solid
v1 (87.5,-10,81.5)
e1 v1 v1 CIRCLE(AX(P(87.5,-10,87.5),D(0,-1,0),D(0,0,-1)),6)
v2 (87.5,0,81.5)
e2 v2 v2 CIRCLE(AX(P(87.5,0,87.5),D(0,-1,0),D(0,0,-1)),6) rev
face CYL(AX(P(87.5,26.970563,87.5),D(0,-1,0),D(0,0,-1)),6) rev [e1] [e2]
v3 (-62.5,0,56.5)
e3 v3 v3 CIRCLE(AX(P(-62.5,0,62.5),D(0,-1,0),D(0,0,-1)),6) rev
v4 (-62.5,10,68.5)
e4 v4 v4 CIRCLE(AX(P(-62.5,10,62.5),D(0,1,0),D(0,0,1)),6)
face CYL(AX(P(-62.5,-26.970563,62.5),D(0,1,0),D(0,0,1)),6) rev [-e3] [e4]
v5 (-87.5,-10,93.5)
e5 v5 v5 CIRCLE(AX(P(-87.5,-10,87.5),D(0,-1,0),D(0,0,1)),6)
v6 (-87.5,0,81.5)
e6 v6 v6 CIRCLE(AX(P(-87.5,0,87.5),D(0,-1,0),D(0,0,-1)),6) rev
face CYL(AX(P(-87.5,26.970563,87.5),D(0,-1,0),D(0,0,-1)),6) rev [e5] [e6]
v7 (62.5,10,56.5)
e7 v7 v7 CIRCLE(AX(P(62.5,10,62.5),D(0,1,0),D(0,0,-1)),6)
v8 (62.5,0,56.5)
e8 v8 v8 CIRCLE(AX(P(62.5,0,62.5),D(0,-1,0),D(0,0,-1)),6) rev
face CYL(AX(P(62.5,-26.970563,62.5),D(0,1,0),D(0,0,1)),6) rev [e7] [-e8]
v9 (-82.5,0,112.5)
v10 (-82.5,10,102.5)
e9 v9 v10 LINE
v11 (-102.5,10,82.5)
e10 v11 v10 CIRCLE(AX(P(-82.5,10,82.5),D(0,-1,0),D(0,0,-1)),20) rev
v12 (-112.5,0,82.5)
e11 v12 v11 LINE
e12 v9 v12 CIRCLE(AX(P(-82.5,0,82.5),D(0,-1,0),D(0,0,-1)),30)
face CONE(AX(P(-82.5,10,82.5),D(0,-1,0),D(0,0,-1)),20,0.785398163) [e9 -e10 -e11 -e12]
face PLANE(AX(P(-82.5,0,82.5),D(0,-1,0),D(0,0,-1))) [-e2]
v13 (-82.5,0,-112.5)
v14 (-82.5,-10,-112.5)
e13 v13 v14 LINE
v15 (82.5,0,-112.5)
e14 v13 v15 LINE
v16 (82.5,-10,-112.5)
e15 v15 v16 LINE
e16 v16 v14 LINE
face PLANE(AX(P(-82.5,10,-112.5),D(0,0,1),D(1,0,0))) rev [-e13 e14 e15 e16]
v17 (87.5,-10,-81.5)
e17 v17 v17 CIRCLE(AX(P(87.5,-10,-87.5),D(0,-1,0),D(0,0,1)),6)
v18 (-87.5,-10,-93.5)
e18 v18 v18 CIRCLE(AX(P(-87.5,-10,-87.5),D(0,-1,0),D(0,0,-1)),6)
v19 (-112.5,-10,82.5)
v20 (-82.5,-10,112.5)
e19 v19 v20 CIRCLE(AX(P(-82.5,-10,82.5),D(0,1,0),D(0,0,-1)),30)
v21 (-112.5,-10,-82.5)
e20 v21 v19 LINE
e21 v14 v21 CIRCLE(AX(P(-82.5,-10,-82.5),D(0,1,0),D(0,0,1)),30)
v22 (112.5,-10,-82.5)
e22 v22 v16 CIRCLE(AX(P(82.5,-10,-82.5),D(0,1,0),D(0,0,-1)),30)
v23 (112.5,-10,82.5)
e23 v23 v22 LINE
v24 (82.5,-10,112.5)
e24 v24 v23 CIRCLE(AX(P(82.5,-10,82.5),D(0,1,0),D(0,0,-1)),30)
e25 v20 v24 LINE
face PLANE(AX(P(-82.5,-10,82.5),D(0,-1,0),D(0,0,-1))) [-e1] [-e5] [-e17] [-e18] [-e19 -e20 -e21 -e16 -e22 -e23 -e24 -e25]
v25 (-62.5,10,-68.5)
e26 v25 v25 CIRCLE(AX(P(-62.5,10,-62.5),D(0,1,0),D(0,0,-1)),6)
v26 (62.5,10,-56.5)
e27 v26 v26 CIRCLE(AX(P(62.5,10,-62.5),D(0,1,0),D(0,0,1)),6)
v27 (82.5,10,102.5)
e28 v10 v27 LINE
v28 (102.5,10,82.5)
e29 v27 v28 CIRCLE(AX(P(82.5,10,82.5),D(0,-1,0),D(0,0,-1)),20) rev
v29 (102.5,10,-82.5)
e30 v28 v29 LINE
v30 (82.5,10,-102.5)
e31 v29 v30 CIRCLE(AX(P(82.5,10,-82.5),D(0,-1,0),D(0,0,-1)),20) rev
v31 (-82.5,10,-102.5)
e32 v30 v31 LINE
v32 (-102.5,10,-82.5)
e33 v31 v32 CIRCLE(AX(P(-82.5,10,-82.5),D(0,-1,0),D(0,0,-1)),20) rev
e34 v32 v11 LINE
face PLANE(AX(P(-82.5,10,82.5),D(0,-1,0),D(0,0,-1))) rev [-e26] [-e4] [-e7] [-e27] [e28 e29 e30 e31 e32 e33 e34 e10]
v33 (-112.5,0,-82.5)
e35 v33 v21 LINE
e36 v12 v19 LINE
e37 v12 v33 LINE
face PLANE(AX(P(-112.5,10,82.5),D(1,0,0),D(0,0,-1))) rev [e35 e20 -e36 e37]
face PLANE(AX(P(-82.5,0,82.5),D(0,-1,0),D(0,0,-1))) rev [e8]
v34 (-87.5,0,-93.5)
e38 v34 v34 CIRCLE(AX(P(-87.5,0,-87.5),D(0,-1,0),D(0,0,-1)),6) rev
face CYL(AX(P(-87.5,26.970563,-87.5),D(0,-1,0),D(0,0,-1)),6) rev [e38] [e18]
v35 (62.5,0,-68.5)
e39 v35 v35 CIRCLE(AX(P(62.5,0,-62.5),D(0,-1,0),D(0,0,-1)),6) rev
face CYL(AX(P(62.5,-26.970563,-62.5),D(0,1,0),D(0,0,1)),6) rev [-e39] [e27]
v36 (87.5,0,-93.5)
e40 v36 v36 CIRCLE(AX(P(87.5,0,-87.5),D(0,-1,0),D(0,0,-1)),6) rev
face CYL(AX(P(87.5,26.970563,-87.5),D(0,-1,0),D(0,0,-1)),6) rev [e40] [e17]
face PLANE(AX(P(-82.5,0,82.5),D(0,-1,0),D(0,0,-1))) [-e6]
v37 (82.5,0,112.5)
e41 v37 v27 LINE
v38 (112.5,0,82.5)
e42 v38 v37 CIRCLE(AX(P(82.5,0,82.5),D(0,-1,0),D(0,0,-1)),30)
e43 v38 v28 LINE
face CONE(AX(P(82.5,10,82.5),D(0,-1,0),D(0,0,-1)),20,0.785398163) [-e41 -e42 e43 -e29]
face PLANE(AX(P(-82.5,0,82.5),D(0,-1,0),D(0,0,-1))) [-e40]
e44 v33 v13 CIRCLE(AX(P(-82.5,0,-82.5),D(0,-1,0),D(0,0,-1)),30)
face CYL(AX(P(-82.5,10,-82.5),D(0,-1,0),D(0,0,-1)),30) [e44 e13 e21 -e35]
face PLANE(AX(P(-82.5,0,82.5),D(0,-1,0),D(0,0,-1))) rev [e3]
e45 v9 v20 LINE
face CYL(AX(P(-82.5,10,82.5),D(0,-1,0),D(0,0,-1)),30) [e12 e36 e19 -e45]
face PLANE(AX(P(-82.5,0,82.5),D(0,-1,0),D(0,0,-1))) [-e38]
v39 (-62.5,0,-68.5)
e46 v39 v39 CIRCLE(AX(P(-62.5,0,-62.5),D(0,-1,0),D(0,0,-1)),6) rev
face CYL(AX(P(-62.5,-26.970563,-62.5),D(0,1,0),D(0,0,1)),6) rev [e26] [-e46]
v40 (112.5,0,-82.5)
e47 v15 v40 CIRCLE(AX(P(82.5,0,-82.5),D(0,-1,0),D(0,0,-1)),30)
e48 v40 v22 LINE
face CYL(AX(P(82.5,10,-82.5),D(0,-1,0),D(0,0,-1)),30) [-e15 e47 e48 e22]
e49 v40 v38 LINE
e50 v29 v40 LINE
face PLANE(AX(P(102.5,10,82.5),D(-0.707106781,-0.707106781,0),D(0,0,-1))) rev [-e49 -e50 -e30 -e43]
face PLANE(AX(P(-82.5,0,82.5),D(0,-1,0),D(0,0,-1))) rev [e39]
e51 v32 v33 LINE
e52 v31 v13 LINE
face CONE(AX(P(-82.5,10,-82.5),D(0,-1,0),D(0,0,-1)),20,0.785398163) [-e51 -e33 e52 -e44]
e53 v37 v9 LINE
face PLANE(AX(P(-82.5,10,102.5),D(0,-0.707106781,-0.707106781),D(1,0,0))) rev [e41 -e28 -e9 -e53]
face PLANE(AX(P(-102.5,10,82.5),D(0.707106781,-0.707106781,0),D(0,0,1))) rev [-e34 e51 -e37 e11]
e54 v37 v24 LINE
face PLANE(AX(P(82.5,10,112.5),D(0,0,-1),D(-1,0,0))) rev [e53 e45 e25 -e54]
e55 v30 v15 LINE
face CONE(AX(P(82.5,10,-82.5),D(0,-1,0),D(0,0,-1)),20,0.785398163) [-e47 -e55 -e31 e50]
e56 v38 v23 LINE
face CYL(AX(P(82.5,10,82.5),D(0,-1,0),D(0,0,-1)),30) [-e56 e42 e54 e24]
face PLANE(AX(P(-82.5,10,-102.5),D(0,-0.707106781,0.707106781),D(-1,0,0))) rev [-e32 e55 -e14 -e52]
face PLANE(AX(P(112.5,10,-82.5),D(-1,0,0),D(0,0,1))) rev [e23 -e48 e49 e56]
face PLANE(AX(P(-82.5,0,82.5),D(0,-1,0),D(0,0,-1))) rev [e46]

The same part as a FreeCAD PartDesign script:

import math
import FreeCAD as App
import Part
import Sketcher

V = App.Vector


def edges_at(feature, points):
    """Names of the edges that pass closest to the given points."""
    edges = feature.Shape.Edges
    near = lambda p: min(range(len(edges)), key=lambda i: edges[i].distToShape(Part.Vertex(*p))[0])
    return sorted({f"Edge{near(p) + 1}" for p in points})

doc = App.newDocument("Part")
body = doc.addObject("PartDesign::Body", "Body")

# Sketch on XZ plane
sketch1 = body.newObject("Sketcher::SketchObject", "Sketch")
sketch1.AttachmentSupport = (doc.getObject("XZ_Plane"), [""])
sketch1.MapMode = "FlatFace"
sketch1.addGeometry(Part.LineSegment(V(82, -112, 0), V(-82, -112, 0)), False)
sketch1.addGeometry(Part.ArcOfCircle(Part.Circle(V(-83, -83, 0), V(0, 0, 1), 30), math.radians(180), math.radians(270)), False)
sketch1.addGeometry(Part.LineSegment(V(-112, -82, 0), V(-112, 82, 0)), False)
sketch1.addGeometry(Part.ArcOfCircle(Part.Circle(V(-83, 83, 0), V(0, 0, 1), 30), math.radians(90), math.radians(180)), False)
sketch1.addGeometry(Part.LineSegment(V(-82, 112, 0), V(82, 112, 0)), False)
sketch1.addGeometry(Part.ArcOfCircle(Part.Circle(V(83, 83, 0), V(0, 0, 1), 30), math.radians(0), math.radians(90)), False)
sketch1.addGeometry(Part.LineSegment(V(112, 82, 0), V(112, -82, 0)), False)
sketch1.addGeometry(Part.ArcOfCircle(Part.Circle(V(83, -83, 0), V(0, 0, 1), 30), math.radians(-90), math.radians(0)), False)
sketch1.addConstraint(Sketcher.Constraint("Tangent", 0, 2, 1, 2))
sketch1.addConstraint(Sketcher.Constraint("Tangent", 1, 1, 2, 1))
sketch1.addConstraint(Sketcher.Constraint("Tangent", 2, 2, 3, 2))
sketch1.addConstraint(Sketcher.Constraint("Tangent", 3, 1, 4, 1))
sketch1.addConstraint(Sketcher.Constraint("Tangent", 4, 2, 5, 2))
sketch1.addConstraint(Sketcher.Constraint("Tangent", 5, 1, 6, 1))
sketch1.addConstraint(Sketcher.Constraint("Tangent", 6, 2, 7, 2))
sketch1.addConstraint(Sketcher.Constraint("Tangent", 7, 1, 0, 1))
sketch1.addConstraint(Sketcher.Constraint("Horizontal", 0))
sketch1.addConstraint(Sketcher.Constraint("Vertical", 2))
sketch1.addConstraint(Sketcher.Constraint("Horizontal", 4))
sketch1.addConstraint(Sketcher.Constraint("Vertical", 6))
sketch1.addConstraint(Sketcher.Constraint("Equal", 1, 3))
sketch1.addConstraint(Sketcher.Constraint("Equal", 3, 5))
sketch1.addConstraint(Sketcher.Constraint("Equal", 5, 7))
sketch1.addConstraint(Sketcher.Constraint("Symmetric", 1, 3, 5, 3, -1, 1))
sketch1.addConstraint(Sketcher.Constraint("Equal", 4, 2))
sketch1.addConstraint(Sketcher.Constraint("Radius", 1, 30.0))
sketch1.addConstraint(Sketcher.Constraint("DistanceX", 0, 2, 0, 1, 165.0))
pad1 = body.newObject("PartDesign::Pad", "Pad")
pad1.Profile = sketch1
pad1.Length = 20
pad1.Midplane = True
doc.recompute()

chamfer = body.newObject("PartDesign::Chamfer", "Chamfer")
chamfer.Base = (pad1, edges_at(pad1, [
    (103.713, 10, 103.713),
    (112.5, 10, 0),
    (103.713, 10, -103.713),
    (0, 10, -112.5),
    (-103.713, 10, -103.713),
    (-112.5, 10, 0),
    (-103.713, 10, 103.713),
    (0, 10, 112.5),
]))
chamfer.Size = 10

# Sketch on XZ plane
sketch2 = body.newObject("Sketcher::SketchObject", "Sketch001")
sketch2.AttachmentSupport = (doc.getObject("XZ_Plane"), [""])
sketch2.MapMode = "FlatFace"
sketch2.AttachmentOffset = App.Placement(V(0, 0, -10), App.Rotation())
sketch2.addGeometry(Part.Circle(V(62, -62, 0), V(0, 0, 1), 6), False)
sketch2.addGeometry(Part.Circle(V(-62, -62, 0), V(0, 0, 1), 6), False)
sketch2.addGeometry(Part.Circle(V(62, 62, 0), V(0, 0, 1), 6), False)
sketch2.addGeometry(Part.Circle(V(-62, 62, 0), V(0, 0, 1), 6), False)
sketch2.addConstraint(Sketcher.Constraint("Equal", 0, 1))
sketch2.addConstraint(Sketcher.Constraint("Equal", 1, 2))
sketch2.addConstraint(Sketcher.Constraint("Equal", 2, 3))
sketch2.addConstraint(Sketcher.Constraint("Symmetric", 1, 3, 2, 3, -1, 1))
sketch2.addConstraint(Sketcher.Constraint("Symmetric", 0, 3, 3, 3, -1, 1))
sketch2.addConstraint(Sketcher.Constraint("Symmetric", 0, 3, 1, 3, -2))
sketch2.addConstraint(Sketcher.Constraint("Diameter", 0, 12.0))
sketch2.addConstraint(Sketcher.Constraint("DistanceX", 1, 3, 0, 3, 125.0))
sketch2.addConstraint(Sketcher.Constraint("DistanceY", 0, 3, 2, 3, 125.0))
pocket1 = body.newObject("PartDesign::Pocket", "Pocket")
pocket1.Profile = sketch2
pocket1.Length = 10
pocket1.Reversed = True

# Sketch on XZ plane
sketch3 = body.newObject("Sketcher::SketchObject", "Sketch002")
sketch3.AttachmentSupport = (doc.getObject("XZ_Plane"), [""])
sketch3.MapMode = "FlatFace"
sketch3.AttachmentOffset = App.Placement(V(0, 0, 10), App.Rotation())
sketch3.addGeometry(Part.Circle(V(88, 88, 0), V(0, 0, 1), 6), False)
sketch3.addGeometry(Part.Circle(V(-88, 88, 0), V(0, 0, 1), 6), False)
sketch3.addGeometry(Part.Circle(V(88, -88, 0), V(0, 0, 1), 6), False)
sketch3.addGeometry(Part.Circle(V(-88, -88, 0), V(0, 0, 1), 6), False)
sketch3.addConstraint(Sketcher.Constraint("Equal", 0, 1))
sketch3.addConstraint(Sketcher.Constraint("Equal", 1, 2))
sketch3.addConstraint(Sketcher.Constraint("Equal", 2, 3))
sketch3.addConstraint(Sketcher.Constraint("Symmetric", 1, 3, 2, 3, -1, 1))
sketch3.addConstraint(Sketcher.Constraint("Symmetric", 0, 3, 3, 3, -1, 1))
sketch3.addConstraint(Sketcher.Constraint("Symmetric", 0, 3, 1, 3, -2))
sketch3.addConstraint(Sketcher.Constraint("Diameter", 0, 12.0))
sketch3.addConstraint(Sketcher.Constraint("DistanceX", 1, 3, 0, 3, 175.0))
sketch3.addConstraint(Sketcher.Constraint("DistanceY", 2, 3, 0, 3, 175.0))
pocket2 = body.newObject("PartDesign::Pocket", "Pocket001")
pocket2.Profile = sketch3
pocket2.Length = 10

doc.recompute()
